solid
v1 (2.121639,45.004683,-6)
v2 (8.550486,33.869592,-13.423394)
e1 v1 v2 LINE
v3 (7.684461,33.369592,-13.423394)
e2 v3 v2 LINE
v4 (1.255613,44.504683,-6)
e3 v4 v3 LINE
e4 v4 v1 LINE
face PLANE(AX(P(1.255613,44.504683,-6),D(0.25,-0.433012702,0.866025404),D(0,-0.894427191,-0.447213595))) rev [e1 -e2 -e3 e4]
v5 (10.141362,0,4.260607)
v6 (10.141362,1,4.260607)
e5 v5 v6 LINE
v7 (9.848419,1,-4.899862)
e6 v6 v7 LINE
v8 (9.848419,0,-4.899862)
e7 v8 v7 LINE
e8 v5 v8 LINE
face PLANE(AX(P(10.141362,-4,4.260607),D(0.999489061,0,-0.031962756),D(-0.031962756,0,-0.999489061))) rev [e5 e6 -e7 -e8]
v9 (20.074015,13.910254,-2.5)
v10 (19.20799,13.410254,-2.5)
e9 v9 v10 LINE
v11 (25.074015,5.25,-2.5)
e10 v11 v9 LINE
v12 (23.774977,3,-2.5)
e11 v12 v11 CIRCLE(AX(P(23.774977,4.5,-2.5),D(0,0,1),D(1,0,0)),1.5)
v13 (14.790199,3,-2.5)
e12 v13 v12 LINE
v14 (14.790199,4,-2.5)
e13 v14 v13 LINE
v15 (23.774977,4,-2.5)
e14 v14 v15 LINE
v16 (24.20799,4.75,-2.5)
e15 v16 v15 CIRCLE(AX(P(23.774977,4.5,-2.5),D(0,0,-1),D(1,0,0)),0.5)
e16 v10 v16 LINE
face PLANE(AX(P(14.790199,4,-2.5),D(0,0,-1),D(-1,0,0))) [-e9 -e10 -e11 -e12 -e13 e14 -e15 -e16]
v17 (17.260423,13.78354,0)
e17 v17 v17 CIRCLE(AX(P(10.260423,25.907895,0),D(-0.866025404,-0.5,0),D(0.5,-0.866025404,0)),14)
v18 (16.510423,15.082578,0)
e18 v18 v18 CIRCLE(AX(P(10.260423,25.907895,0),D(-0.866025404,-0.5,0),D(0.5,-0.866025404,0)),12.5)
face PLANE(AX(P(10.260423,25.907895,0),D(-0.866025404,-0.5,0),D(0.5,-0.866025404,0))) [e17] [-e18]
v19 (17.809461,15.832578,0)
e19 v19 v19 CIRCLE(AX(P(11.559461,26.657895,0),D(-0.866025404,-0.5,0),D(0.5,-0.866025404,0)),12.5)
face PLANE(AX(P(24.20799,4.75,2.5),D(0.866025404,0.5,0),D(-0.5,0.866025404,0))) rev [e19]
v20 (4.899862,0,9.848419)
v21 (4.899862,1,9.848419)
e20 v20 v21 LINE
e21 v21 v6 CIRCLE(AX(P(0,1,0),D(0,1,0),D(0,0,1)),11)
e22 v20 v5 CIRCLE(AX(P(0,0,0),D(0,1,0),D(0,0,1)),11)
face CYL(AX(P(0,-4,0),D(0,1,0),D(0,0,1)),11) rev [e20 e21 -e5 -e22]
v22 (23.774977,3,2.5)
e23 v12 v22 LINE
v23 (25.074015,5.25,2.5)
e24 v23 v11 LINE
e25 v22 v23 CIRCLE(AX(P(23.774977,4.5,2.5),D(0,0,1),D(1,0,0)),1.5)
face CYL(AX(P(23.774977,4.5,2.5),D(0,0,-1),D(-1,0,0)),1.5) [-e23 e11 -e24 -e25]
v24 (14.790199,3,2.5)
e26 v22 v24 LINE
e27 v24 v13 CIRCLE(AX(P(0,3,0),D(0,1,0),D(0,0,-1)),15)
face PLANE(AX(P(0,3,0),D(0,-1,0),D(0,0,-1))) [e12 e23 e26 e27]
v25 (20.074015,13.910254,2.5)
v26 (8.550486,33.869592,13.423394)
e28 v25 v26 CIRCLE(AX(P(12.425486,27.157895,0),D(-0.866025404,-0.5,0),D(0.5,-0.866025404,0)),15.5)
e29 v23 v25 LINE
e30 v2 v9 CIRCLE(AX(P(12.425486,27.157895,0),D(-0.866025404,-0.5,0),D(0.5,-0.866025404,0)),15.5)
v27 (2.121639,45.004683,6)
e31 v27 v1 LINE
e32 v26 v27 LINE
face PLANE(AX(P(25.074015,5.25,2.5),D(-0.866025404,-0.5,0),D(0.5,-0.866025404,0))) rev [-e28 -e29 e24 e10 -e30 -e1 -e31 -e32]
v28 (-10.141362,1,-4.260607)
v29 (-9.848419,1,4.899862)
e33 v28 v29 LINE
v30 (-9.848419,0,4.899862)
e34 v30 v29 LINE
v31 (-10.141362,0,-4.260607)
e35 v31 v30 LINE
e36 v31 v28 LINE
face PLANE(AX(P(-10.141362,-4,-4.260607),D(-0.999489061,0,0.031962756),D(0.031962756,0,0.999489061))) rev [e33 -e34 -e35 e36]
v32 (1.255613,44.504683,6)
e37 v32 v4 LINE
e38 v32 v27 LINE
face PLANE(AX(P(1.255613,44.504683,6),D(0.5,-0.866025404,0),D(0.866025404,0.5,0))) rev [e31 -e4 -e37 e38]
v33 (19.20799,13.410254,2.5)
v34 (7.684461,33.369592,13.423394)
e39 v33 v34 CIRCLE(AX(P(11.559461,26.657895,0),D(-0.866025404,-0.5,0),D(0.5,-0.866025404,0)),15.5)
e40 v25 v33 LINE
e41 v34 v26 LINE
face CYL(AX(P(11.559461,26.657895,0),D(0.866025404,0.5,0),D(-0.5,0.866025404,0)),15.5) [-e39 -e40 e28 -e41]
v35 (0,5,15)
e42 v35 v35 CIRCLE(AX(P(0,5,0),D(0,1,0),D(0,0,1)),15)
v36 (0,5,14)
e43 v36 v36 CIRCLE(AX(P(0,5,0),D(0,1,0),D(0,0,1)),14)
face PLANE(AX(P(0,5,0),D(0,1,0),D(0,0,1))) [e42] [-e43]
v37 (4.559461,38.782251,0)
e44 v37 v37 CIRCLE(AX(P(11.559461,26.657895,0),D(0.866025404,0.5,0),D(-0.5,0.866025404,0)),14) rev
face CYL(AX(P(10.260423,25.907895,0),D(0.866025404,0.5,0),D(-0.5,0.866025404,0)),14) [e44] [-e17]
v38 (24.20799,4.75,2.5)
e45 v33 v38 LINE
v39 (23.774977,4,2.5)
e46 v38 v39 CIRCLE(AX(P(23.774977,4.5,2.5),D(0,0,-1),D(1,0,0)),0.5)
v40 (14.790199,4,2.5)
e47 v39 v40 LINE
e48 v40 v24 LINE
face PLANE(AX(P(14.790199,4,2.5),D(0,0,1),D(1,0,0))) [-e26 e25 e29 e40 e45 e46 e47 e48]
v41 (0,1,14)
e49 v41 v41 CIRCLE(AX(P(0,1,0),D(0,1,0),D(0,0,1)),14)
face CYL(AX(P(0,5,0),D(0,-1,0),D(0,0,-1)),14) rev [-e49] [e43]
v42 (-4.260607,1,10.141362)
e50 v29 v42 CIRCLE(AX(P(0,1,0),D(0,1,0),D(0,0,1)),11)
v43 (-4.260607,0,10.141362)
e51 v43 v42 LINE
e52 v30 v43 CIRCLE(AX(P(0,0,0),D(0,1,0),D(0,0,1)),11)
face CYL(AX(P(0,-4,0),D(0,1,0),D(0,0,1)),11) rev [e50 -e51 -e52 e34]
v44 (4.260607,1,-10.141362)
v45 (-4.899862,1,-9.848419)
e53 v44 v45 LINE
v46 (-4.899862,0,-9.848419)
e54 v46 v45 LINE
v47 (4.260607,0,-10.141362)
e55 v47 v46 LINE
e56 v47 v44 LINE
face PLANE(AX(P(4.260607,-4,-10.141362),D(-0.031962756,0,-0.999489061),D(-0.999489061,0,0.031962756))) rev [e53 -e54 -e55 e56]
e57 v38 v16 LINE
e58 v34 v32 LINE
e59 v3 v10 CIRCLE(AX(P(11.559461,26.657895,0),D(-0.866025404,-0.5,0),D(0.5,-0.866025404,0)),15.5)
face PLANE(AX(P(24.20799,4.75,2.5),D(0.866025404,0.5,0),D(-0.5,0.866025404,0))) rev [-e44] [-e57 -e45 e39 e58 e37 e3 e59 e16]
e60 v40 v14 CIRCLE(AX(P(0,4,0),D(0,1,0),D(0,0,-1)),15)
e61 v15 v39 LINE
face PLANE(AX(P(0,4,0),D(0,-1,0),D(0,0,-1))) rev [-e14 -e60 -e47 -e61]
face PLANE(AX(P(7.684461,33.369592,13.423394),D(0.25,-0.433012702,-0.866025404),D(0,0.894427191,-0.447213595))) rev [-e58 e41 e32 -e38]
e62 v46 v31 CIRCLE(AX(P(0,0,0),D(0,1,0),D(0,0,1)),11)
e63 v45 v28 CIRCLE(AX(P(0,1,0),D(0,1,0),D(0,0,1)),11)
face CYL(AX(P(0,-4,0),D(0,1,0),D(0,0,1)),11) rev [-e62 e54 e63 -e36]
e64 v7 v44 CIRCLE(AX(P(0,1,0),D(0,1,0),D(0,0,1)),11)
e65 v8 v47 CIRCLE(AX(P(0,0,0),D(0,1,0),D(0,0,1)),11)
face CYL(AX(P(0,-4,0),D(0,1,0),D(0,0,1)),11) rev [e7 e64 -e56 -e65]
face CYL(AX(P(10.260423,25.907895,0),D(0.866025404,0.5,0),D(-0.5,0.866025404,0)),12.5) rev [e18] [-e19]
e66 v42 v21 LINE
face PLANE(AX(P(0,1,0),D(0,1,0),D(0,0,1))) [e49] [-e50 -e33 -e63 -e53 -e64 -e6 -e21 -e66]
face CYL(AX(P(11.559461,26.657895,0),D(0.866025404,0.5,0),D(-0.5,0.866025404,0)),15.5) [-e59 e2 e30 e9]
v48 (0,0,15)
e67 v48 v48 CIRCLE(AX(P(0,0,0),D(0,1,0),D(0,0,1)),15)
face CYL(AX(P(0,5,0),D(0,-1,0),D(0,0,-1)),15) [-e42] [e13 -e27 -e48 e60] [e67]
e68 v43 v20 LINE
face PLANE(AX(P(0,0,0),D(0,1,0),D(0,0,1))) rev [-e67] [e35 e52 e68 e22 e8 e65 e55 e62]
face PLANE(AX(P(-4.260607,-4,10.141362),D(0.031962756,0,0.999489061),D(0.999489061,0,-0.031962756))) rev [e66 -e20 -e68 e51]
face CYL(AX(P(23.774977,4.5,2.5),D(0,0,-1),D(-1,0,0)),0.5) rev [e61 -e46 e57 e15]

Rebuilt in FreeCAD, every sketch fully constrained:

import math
import FreeCAD as App
import Part
import Sketcher

V = App.Vector
Q = App.Units.Quantity


def faces_at(feature, points):
    """Names of the faces that lie closest to the given points."""
    faces = feature.Shape.Faces
    near = lambda p: min(range(len(faces)), key=lambda i: faces[i].distToShape(Part.Vertex(*p))[0])
    return sorted({f"Face{near(p) + 1}" for p in points})

doc = App.newDocument("Part")
params = doc.addObject("Spreadsheet::Sheet", "Params")
for row, (alias, value) in enumerate([
    ("sketch1_diameter", "30 mm"),
    ("pad1_length", "5 mm"),
    ("thickness_wall", "1 mm"),
    ("sketch2_radius", "11 mm"),
    ("pocket1_length", "5 mm"),
    ("sketch3_radius", "15 mm"),
    ("sketch3_height", "5 mm"),
    ("pad2_length", "1 mm"),
    ("sketch4_radius", "0.5 mm"),
    ("sketch4_radius2", "1.5 mm"),
    ("sketch4_length", "10 mm"),
    ("pad3_length", "5 mm"),
    ("sketch5_radius", "15.5 mm"),
    ("sketch5_width", "12 mm"),
    ("pad4_length", "1 mm"),
    ("sketch6_diameter", "28 mm"),
    ("sketch6_diameter2", "25 mm"),
    ("pad5_length", "1.5 mm"),
], start=1):
    params.set(f"A{row}", alias)
    params.set(f"B{row}", "=" + value)
    params.setAlias(f"B{row}", alias)

body = doc.addObject("PartDesign::Body", "Body")

sketch1 = body.newObject("Sketcher::SketchObject", "Sketch")
sketch1.AttachmentSupport = (doc.getObject("XZ_Plane"), [""])
sketch1.MapMode = "FlatFace"
sketch1.addGeometry(Part.Circle(V(0, 0, 0), V(0, 0, 1), 15), False)
sketch1.addConstraint(Sketcher.Constraint("Coincident", 0, 3, -1, 1))
sketch1.addConstraint(Sketcher.Constraint("Diameter", 0, 30.0))
sketch1.setExpression("Constraints[1]", "Params.sketch1_diameter")
pad1 = body.newObject("PartDesign::Pad", "Pad")
pad1.Profile = sketch1
pad1.setExpression("Length", "Params.pad1_length")
pad1.Reversed = True
doc.recompute()

thickness = body.newObject("PartDesign::Thickness", "Thickness")
thickness.Base = (pad1, faces_at(pad1, [(0, 5, 0)]))
thickness.setExpression("Value", "Params.thickness_wall")
thickness.Reversed = True
thickness.Join = "Intersection"

sketch2 = body.newObject("Sketcher::SketchObject", "Sketch001")
sketch2.AttachmentSupport = (doc.getObject("XZ_Plane"), [""])
sketch2.MapMode = "FlatFace"
sketch2.AttachmentOffset = App.Placement(V(0, 0, -1), App.Rotation())
sketch2.addGeometry(Part.LineSegment(V(-10.141362, -4.260607, 0), V(-9.848419, 4.899862, 0)), False)
sketch2.addGeometry(Part.ArcOfCircle(Part.Circle(V(0, 0, 0), V(0, 0, 1), 11), math.radians(112.788334), math.radians(153.54838)), False)
sketch2.addGeometry(Part.LineSegment(V(-4.260607, 10.141362, 0), V(4.899862, 9.848419, 0)), False)
sketch2.addGeometry(Part.ArcOfCircle(Part.Circle(V(0, 0, 0), V(0, 0, 1), 11), math.radians(22.788334), math.radians(63.54838)), False)
sketch2.addGeometry(Part.LineSegment(V(10.141362, 4.260607, 0), V(9.848419, -4.899862, 0)), False)
sketch2.addGeometry(Part.ArcOfCircle(Part.Circle(V(0, 0, 0), V(0, 0, 1), 11), math.radians(-67.211666), math.radians(-26.45162)), False)
sketch2.addGeometry(Part.LineSegment(V(4.260607, -10.141362, 0), V(-4.899862, -9.848419, 0)), False)
sketch2.addGeometry(Part.ArcOfCircle(Part.Circle(V(0, 0, 0), V(0, 0, 1), 11), math.radians(-157.211666), math.radians(-116.45162)), False)
sketch2.addConstraint(Sketcher.Constraint("Coincident", 0, 2, 1, 2))
sketch2.addConstraint(Sketcher.Constraint("Coincident", 1, 1, 2, 1))
sketch2.addConstraint(Sketcher.Constraint("Coincident", 2, 2, 3, 2))
sketch2.addConstraint(Sketcher.Constraint("Coincident", 3, 1, 4, 1))
sketch2.addConstraint(Sketcher.Constraint("Coincident", 4, 2, 5, 2))
sketch2.addConstraint(Sketcher.Constraint("Coincident", 5, 1, 6, 1))
sketch2.addConstraint(Sketcher.Constraint("Coincident", 6, 2, 7, 2))
sketch2.addConstraint(Sketcher.Constraint("Coincident", 7, 1, 0, 1))
sketch2.addConstraint(Sketcher.Constraint("Coincident", 1, 3, -1, 1))
sketch2.addConstraint(Sketcher.Constraint("Coincident", 3, 3, -1, 1))
sketch2.addConstraint(Sketcher.Constraint("Coincident", 5, 3, -1, 1))
sketch2.addConstraint(Sketcher.Constraint("Coincident", 7, 3, -1, 1))
sketch2.addConstraint(Sketcher.Constraint("Equal", 1, 3))
sketch2.addConstraint(Sketcher.Constraint("Equal", 3, 5))
sketch2.addConstraint(Sketcher.Constraint("Equal", 5, 7))
sketch2.addConstraint(Sketcher.Constraint("Perpendicular", 0, 2))
sketch2.addConstraint(Sketcher.Constraint("Perpendicular", 2, 4))
sketch2.addConstraint(Sketcher.Constraint("Perpendicular", 4, 6))
sketch2.addConstraint(Sketcher.Constraint("Equal", 0, 2))
sketch2.addConstraint(Sketcher.Constraint("Equal", 2, 4))
sketch2.addConstraint(Sketcher.Constraint("Equal", 4, 6))
sketch2.addConstraint(Sketcher.Constraint("Radius", 1, 11.0))
sketch2.addConstraint(Sketcher.Constraint("DistanceY", 0, 2, 1, 1, 5.241501))
sketch2.addConstraint(Sketcher.Constraint("Distance", 0, 9.165151))
sketch2.setExpression("Constraints[21]", "Params.sketch2_radius")
pocket1 = body.newObject("PartDesign::Pocket", "Pocket")
pocket1.Profile = sketch2
pocket1.setExpression("Length", "Params.pocket1_length")
pocket1.Reversed = True

sketch3 = body.newObject("Sketcher::SketchObject", "Sketch002")
sketch3.AttachmentSupport = (doc.getObject("XZ_Plane"), [""])
sketch3.MapMode = "FlatFace"
sketch3.AttachmentOffset = App.Placement(V(0, 0, -3), App.Rotation())
sketch3.addGeometry(Part.LineSegment(V(14.790199, -2.5, 0), V(23.774977, -2.5, 0)), False)
sketch3.addGeometry(Part.LineSegment(V(23.774977, -2.5, 0), V(23.774977, 2.5, 0)), False)
sketch3.addGeometry(Part.LineSegment(V(23.774977, 2.5, 0), V(14.790199, 2.5, 0)), False)
sketch3.addGeometry(Part.ArcOfCircle(Part.Circle(V(0, 0, 0), V(0, 0, 1), 15), math.radians(-9.594068), math.radians(9.594068)), False)
sketch3.addConstraint(Sketcher.Constraint("Coincident", 0, 2, 1, 1))
sketch3.addConstraint(Sketcher.Constraint("Coincident", 1, 2, 2, 1))
sketch3.addConstraint(Sketcher.Constraint("Coincident", 2, 2, 3, 2))
sketch3.addConstraint(Sketcher.Constraint("Coincident", 3, 1, 0, 1))
sketch3.addConstraint(Sketcher.Constraint("Horizontal", 0))
sketch3.addConstraint(Sketcher.Constraint("Vertical", 1))
sketch3.addConstraint(Sketcher.Constraint("Horizontal", 2))
sketch3.addConstraint(Sketcher.Constraint("Coincident", 3, 3, -1, 1))
sketch3.addConstraint(Sketcher.Constraint("Vertical", 2, 2, 3, 1))
sketch3.addConstraint(Sketcher.Constraint("Radius", 3, 15.0))
sketch3.addConstraint(Sketcher.Constraint("DistanceY", 1, 1, 1, 2, 5.0))
sketch3.addConstraint(Sketcher.Constraint("DistanceX", 0, 1, 0, 2, 8.984778))
sketch3.setExpression("Constraints[9]", "Params.sketch3_radius")
sketch3.setExpression("Constraints[10]", "Params.sketch3_height")
pad2 = body.newObject("PartDesign::Pad", "Pad001")
pad2.Profile = sketch3
pad2.setExpression("Length", "Params.pad2_length")
pad2.Reversed = True

sketch4 = body.newObject("Sketcher::SketchObject", "Sketch003")
sketch4.AttachmentSupport = (doc.getObject("XY_Plane"), [""])
sketch4.MapMode = "FlatFace"
sketch4.addGeometry(Part.LineSegment(V(20.074015, 13.910254, 0), V(19.20799, 13.410254, 0)), False)
sketch4.addGeometry(Part.LineSegment(V(19.20799, 13.410254, 0), V(24.20799, 4.75, 0)), False)
sketch4.addGeometry(Part.ArcOfCircle(Part.Circle(V(23.774977, 4.5, 0), V(0, 0, 1), 0.5), math.radians(-90), math.radians(30)), False)
sketch4.addGeometry(Part.LineSegment(V(23.774977, 4, 0), V(23.774977, 3, 0)), False)
sketch4.addGeometry(Part.ArcOfCircle(Part.Circle(V(23.774977, 4.5, 0), V(0, 0, 1), 1.5), math.radians(-90), math.radians(30)), False)
sketch4.addGeometry(Part.LineSegment(V(25.074015, 5.25, 0), V(20.074015, 13.910254, 0)), False)
sketch4.addConstraint(Sketcher.Constraint("Coincident", 0, 2, 1, 1))
sketch4.addConstraint(Sketcher.Constraint("Tangent", 1, 2, 2, 2))
sketch4.addConstraint(Sketcher.Constraint("Coincident", 2, 1, 3, 1))
sketch4.addConstraint(Sketcher.Constraint("Coincident", 3, 2, 4, 1))
sketch4.addConstraint(Sketcher.Constraint("Tangent", 4, 2, 5, 1))
sketch4.addConstraint(Sketcher.Constraint("Coincident", 5, 2, 0, 1))
sketch4.addConstraint(Sketcher.Constraint("Vertical", 3))
sketch4.addConstraint(Sketcher.Constraint("Coincident", 4, 3, 2, 3))
sketch4.addConstraint(Sketcher.Constraint("Perpendicular", 0, 1))
sketch4.addConstraint(Sketcher.Constraint("Parallel", 1, 5))
sketch4.addConstraint(Sketcher.Constraint("Vertical", 4, 3, 2, 1))
sketch4.addConstraint(Sketcher.Constraint("Radius", 2, 0.5))
sketch4.addConstraint(Sketcher.Constraint("Radius", 4, 1.5))
sketch4.addConstraint(Sketcher.Constraint("Angle", 0, Q("-150 deg")))
sketch4.addConstraint(Sketcher.Constraint("Distance", 1, 10.0))
sketch4.addConstraint(Sketcher.Constraint("DistanceY", -1, 1, 2, 1, 4.0))
sketch4.addConstraint(Sketcher.Constraint("DistanceX", -1, 1, 0, 2, 19.20799))
sketch4.setExpression("Constraints[11]", "Params.sketch4_radius")
sketch4.setExpression("Constraints[12]", "Params.sketch4_radius2")
sketch4.setExpression("Constraints[14]", "Params.sketch4_length")
pad3 = body.newObject("PartDesign::Pad", "Pad002")
pad3.Profile = sketch4
pad3.setExpression("Length", "Params.pad3_length")
pad3.Midplane = True

sketch5 = body.newObject("Sketcher::SketchObject", "Sketch004")
sketch5.Placement = App.Placement(V(21.078828, 12.169867, 0), App.Rotation(V(0, 0, 1), V(-0.5, 0.866025404, 0), V(-0.866025404, -0.5, 0), "ZXY"))
sketch5.addGeometry(Part.LineSegment(V(6, 37.914379, 0), V(-6, 37.914379, 0)), False)
sketch5.addGeometry(Part.LineSegment(V(-6, 37.914379, 0), V(-13.423394, 25.056684, 0)), False)
sketch5.addGeometry(Part.ArcOfCircle(Part.Circle(V(0, 17.306684, 0), V(0, 0, 1), 15.5), math.radians(150), math.radians(390)), False)
sketch5.addGeometry(Part.LineSegment(V(13.423394, 25.056684, 0), V(6, 37.914379, 0)), False)
sketch5.addConstraint(Sketcher.Constraint("Coincident", 0, 2, 1, 1))
sketch5.addConstraint(Sketcher.Constraint("Tangent", 1, 2, 2, 1))
sketch5.addConstraint(Sketcher.Constraint("Tangent", 2, 2, 3, 1))
sketch5.addConstraint(Sketcher.Constraint("Coincident", 3, 2, 0, 1))
sketch5.addConstraint(Sketcher.Constraint("Horizontal", 0))
sketch5.addConstraint(Sketcher.Constraint("Symmetric", 1, 2, 2, 2, -2))
sketch5.addConstraint(Sketcher.Constraint("Radius", 2, 15.5))
sketch5.addConstraint(Sketcher.Constraint("DistanceX", 0, 2, 0, 1, 12.0))
sketch5.addConstraint(Sketcher.Constraint("Angle", 1, Q("-120 deg")))
sketch5.addConstraint(Sketcher.Constraint("DistanceY", -1, 1, 0, 2, 37.914379))
sketch5.setExpression("Constraints[6]", "Params.sketch5_radius")
sketch5.setExpression("Constraints[7]", "Params.sketch5_width")
pad4 = body.newObject("PartDesign::Pad", "Pad003")
pad4.Profile = sketch5
pad4.setExpression("Length", "Params.pad4_length")

sketch6 = body.newObject("Sketcher::SketchObject", "Sketch005")
sketch6.Placement = App.Placement(V(20.212803, 11.669867, 0), App.Rotation(V(0, 0, 1), V(-0.5, 0.866025404, 0), V(-0.866025404, -0.5, 0), "ZXY"))
sketch6.addGeometry(Part.Circle(V(0, 17.306684, 0), V(0, 0, 1), 14), False)
sketch6.addGeometry(Part.Circle(V(0, 17.306684, 0), V(0, 0, 1), 12.5), False)
sketch6.addConstraint(Sketcher.Constraint("Coincident", 1, 3, 0, 3))
sketch6.addConstraint(Sketcher.Constraint("PointOnObject", 0, 3, -2))
sketch6.addConstraint(Sketcher.Constraint("Diameter", 0, 28.0))
sketch6.addConstraint(Sketcher.Constraint("Diameter", 1, 25.0))
sketch6.addConstraint(Sketcher.Constraint("DistanceY", -1, 1, 0, 3, 17.306684))
sketch6.setExpression("Constraints[2]", "Params.sketch6_diameter")
sketch6.setExpression("Constraints[3]", "Params.sketch6_diameter2")
pad5 = body.newObject("PartDesign::Pad", "Pad004")
pad5.Profile = sketch6
pad5.setExpression("Length", "Params.pad5_length")

doc.recompute()
